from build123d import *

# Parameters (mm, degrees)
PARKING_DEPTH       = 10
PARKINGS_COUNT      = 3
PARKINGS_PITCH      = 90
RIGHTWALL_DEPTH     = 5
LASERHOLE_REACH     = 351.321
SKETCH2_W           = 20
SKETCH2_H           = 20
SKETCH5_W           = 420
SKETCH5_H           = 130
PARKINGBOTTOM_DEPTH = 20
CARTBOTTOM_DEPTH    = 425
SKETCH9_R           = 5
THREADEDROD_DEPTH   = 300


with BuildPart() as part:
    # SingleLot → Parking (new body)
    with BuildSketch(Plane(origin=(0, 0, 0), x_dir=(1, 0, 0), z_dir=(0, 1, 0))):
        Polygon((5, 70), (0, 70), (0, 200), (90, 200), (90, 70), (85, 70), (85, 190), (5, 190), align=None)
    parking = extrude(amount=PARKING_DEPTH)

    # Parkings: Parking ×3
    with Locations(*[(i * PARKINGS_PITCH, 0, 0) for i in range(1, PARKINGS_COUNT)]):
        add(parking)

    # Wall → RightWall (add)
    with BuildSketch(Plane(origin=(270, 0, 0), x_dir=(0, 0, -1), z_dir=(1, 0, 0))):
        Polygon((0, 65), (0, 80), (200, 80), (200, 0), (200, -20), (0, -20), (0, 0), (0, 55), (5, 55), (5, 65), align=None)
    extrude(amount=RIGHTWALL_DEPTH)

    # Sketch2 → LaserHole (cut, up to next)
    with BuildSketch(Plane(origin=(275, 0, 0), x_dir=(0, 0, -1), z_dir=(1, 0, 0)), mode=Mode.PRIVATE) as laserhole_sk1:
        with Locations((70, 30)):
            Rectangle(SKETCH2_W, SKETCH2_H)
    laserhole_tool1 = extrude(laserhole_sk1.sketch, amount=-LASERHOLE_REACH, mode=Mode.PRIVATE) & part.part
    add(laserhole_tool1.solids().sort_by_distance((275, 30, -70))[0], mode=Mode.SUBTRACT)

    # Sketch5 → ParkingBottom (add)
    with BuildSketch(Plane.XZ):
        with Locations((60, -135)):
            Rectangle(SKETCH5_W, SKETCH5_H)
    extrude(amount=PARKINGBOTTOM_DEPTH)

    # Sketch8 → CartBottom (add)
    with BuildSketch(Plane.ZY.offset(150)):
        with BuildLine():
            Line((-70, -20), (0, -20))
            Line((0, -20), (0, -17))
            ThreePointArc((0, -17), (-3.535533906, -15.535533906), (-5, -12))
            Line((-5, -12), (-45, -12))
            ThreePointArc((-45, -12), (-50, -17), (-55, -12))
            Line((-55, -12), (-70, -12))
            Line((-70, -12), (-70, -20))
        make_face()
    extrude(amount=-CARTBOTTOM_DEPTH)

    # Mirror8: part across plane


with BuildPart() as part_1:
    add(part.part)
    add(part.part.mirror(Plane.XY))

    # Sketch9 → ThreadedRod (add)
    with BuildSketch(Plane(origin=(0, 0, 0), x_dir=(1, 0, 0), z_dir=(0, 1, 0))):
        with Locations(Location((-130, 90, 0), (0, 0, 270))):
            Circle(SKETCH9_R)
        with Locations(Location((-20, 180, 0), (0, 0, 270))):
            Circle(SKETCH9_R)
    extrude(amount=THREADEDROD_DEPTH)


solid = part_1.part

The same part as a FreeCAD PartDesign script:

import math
import FreeCAD as App
import Part
import Sketcher
Q = App.Units.Quantity

doc = App.newDocument("Part")
body = doc.addObject("PartDesign::Body", "Body")

# Sketch on XZ plane
sketch1 = body.newObject("Sketcher::SketchObject", "Sketch")
sketch1.AttachmentSupport = (doc.getObject("XZ_Plane"), [""])
sketch1.MapMode = "FlatFace"
sketch1.addGeometry(Part.LineSegment(App.Vector(0, -70, 0), App.Vector(5, -70, 0)), False)
sketch1.addGeometry(Part.LineSegment(App.Vector(5, -70, 0), App.Vector(5, -190, 0)), False)
sketch1.addGeometry(Part.LineSegment(App.Vector(5, -190, 0), App.Vector(85, -190, 0)), False)
sketch1.addGeometry(Part.LineSegment(App.Vector(85, -190, 0), App.Vector(85, -70, 0)), False)
sketch1.addGeometry(Part.LineSegment(App.Vector(85, -70, 0), App.Vector(90, -70, 0)), False)
sketch1.addGeometry(Part.LineSegment(App.Vector(90, -70, 0), App.Vector(90, -200, 0)), False)
sketch1.addGeometry(Part.LineSegment(App.Vector(90, -200, 0), App.Vector(0, -200, 0)), False)
sketch1.addGeometry(Part.LineSegment(App.Vector(0, -200, 0), App.Vector(0, -70, 0)), False)
sketch1.addConstraint(Sketcher.Constraint("Coincident", 0, 2, 1, 1))
sketch1.addConstraint(Sketcher.Constraint("Coincident", 1, 2, 2, 1))
sketch1.addConstraint(Sketcher.Constraint("Coincident", 2, 2, 3, 1))
sketch1.addConstraint(Sketcher.Constraint("Coincident", 3, 2, 4, 1))
sketch1.addConstraint(Sketcher.Constraint("Coincident", 4, 2, 5, 1))
sketch1.addConstraint(Sketcher.Constraint("Coincident", 5, 2, 6, 1))
sketch1.addConstraint(Sketcher.Constraint("Coincident", 6, 2, 7, 1))
sketch1.addConstraint(Sketcher.Constraint("Coincident", 7, 2, 0, 1))
sketch1.addConstraint(Sketcher.Constraint("Horizontal", 0))
sketch1.addConstraint(Sketcher.Constraint("Vertical", 1))
sketch1.addConstraint(Sketcher.Constraint("Horizontal", 2))
sketch1.addConstraint(Sketcher.Constraint("Vertical", 3))
sketch1.addConstraint(Sketcher.Constraint("Horizontal", 4))
sketch1.addConstraint(Sketcher.Constraint("Vertical", 5))
sketch1.addConstraint(Sketcher.Constraint("Horizontal", 6))
sketch1.addConstraint(Sketcher.Constraint("Vertical", 7))
sketch1.addConstraint(Sketcher.Constraint("PointOnObject", 6, 2, -2))
sketch1.addConstraint(Sketcher.Constraint("Horizontal", 0, 2, 3, 2))
sketch1.addConstraint(Sketcher.Constraint("Equal", 0, 4))
sketch1.addConstraint(Sketcher.Constraint("DistanceX", 0, 1, 0, 2, Q("5 mm")))
sketch1.addConstraint(Sketcher.Constraint("DistanceX", 2, 1, 2, 2, Q("80 mm")))
sketch1.addConstraint(Sketcher.Constraint("DistanceY", 1, 2, 1, 1, Q("120 mm")))
sketch1.addConstraint(Sketcher.Constraint("DistanceY", 5, 2, 5, 1, Q("130 mm")))
sketch1.addConstraint(Sketcher.Constraint("DistanceY", 0, 2, -1, 1, Q("70 mm")))
pad1 = body.newObject("PartDesign::Pad", "Pad")
pad1.Profile = sketch1
pad1.Length = 10
pad1.Reversed = True
doc.recompute()

linearpattern = body.newObject("PartDesign::LinearPattern", "LinearPattern")
linearpattern.Originals = [pad1]
linearpattern.Direction = (doc.getObject("X_Axis"), [""])
linearpattern.Mode = "offset"
linearpattern.Offset = 90
linearpattern.Occurrences = 3
body.Tip = linearpattern

# Sketch on YZ plane
sketch2 = body.newObject("Sketcher::SketchObject", "Sketch001")
sketch2.AttachmentSupport = (doc.getObject("YZ_Plane"), [""])
sketch2.MapMode = "FlatFace"
sketch2.AttachmentOffset = App.Placement(App.Vector(0, 0, 270), App.Rotation())
sketch2.addGeometry(Part.LineSegment(App.Vector(80, 0, 0), App.Vector(65, 0, 0)), False)
sketch2.addGeometry(Part.LineSegment(App.Vector(65, 0, 0), App.Vector(65, -5, 0)), False)
sketch2.addGeometry(Part.LineSegment(App.Vector(65, -5, 0), App.Vector(55, -5, 0)), False)
sketch2.addGeometry(Part.LineSegment(App.Vector(55, -5, 0), App.Vector(55, 0, 0)), False)
sketch2.addGeometry(Part.LineSegment(App.Vector(55, 0, 0), App.Vector(-20, 0, 0)), False)
sketch2.addGeometry(Part.LineSegment(App.Vector(-20, 0, 0), App.Vector(-20, -200, 0)), False)
sketch2.addGeometry(Part.LineSegment(App.Vector(-20, -200, 0), App.Vector(80, -200, 0)), False)
sketch2.addGeometry(Part.LineSegment(App.Vector(80, -200, 0), App.Vector(80, 0, 0)), False)
sketch2.addConstraint(Sketcher.Constraint("Coincident", 0, 2, 1, 1))
sketch2.addConstraint(Sketcher.Constraint("Coincident", 1, 2, 2, 1))
sketch2.addConstraint(Sketcher.Constraint("Coincident", 2, 2, 3, 1))
sketch2.addConstraint(Sketcher.Constraint("Coincident", 3, 2, 4, 1))
sketch2.addConstraint(Sketcher.Constraint("Coincident", 4, 2, 5, 1))
sketch2.addConstraint(Sketcher.Constraint("Coincident", 5, 2, 6, 1))
sketch2.addConstraint(Sketcher.Constraint("Coincident", 6, 2, 7, 1))
sketch2.addConstraint(Sketcher.Constraint("Coincident", 7, 2, 0, 1))
sketch2.addConstraint(Sketcher.Constraint("Horizontal", 0))
sketch2.addConstraint(Sketcher.Constraint("Vertical", 1))
sketch2.addConstraint(Sketcher.Constraint("Horizontal", 2))
sketch2.addConstraint(Sketcher.Constraint("Vertical", 3))
sketch2.addConstraint(Sketcher.Constraint("Horizontal", 4))
sketch2.addConstraint(Sketcher.Constraint("Vertical", 5))
sketch2.addConstraint(Sketcher.Constraint("Horizontal", 6))
sketch2.addConstraint(Sketcher.Constraint("Vertical", 7))
sketch2.addConstraint(Sketcher.Constraint("PointOnObject", 0, 2, -1))
sketch2.addConstraint(Sketcher.Constraint("PointOnObject", 3, 2, -1))
sketch2.addConstraint(Sketcher.Constraint("DistanceX", 0, 2, 0, 1, Q("15 mm")))
sketch2.addConstraint(Sketcher.Constraint("DistanceX", 2, 2, 2, 1, Q("10 mm")))
sketch2.addConstraint(Sketcher.Constraint("DistanceX", 4, 2, 4, 1, Q("75 mm")))
sketch2.addConstraint(Sketcher.Constraint("DistanceY", 1, 2, 1, 1, Q("5 mm")))
sketch2.addConstraint(Sketcher.Constraint("DistanceY", 5, 2, 5, 1, Q("200 mm")))
sketch2.addConstraint(Sketcher.Constraint("DistanceX", -1, 1, 0, 2, Q("65 mm")))
pad2 = body.newObject("PartDesign::Pad", "Pad001")
pad2.Profile = sketch2
pad2.Length = 5

# Sketch on YZ plane
sketch3 = body.newObject("Sketcher::SketchObject", "Sketch002")
sketch3.AttachmentSupport = (doc.getObject("YZ_Plane"), [""])
sketch3.MapMode = "FlatFace"
sketch3.AttachmentOffset = App.Placement(App.Vector(0, 0, 275), App.Rotation())
sketch3.addGeometry(Part.LineSegment(App.Vector(40, -60, 0), App.Vector(20, -60, 0)), False)
sketch3.addGeometry(Part.LineSegment(App.Vector(20, -60, 0), App.Vector(20, -80, 0)), False)
sketch3.addGeometry(Part.LineSegment(App.Vector(20, -80, 0), App.Vector(40, -80, 0)), False)
sketch3.addGeometry(Part.LineSegment(App.Vector(40, -80, 0), App.Vector(40, -60, 0)), False)
sketch3.addConstraint(Sketcher.Constraint("Coincident", 0, 2, 1, 1))
sketch3.addConstraint(Sketcher.Constraint("Coincident", 1, 2, 2, 1))
sketch3.addConstraint(Sketcher.Constraint("Coincident", 2, 2, 3, 1))
sketch3.addConstraint(Sketcher.Constraint("Coincident", 3, 2, 0, 1))
sketch3.addConstraint(Sketcher.Constraint("Horizontal", 0))
sketch3.addConstraint(Sketcher.Constraint("Vertical", 1))
sketch3.addConstraint(Sketcher.Constraint("Horizontal", 2))
sketch3.addConstraint(Sketcher.Constraint("Vertical", 3))
sketch3.addConstraint(Sketcher.Constraint("Equal", 2, 1))
sketch3.addConstraint(Sketcher.Constraint("DistanceX", 0, 2, 0, 1, Q("20 mm")))
sketch3.addConstraint(Sketcher.Constraint("DistanceX", -1, 1, 0, 2, Q("20 mm")))
sketch3.addConstraint(Sketcher.Constraint("DistanceY", 0, 2, -1, 1, Q("60 mm")))
pocket1 = body.newObject("PartDesign::Pocket", "Pocket")
pocket1.Profile = sketch3
pocket1.Type = "UpToFirst"

# Sketch on XZ plane
sketch4 = body.newObject("Sketcher::SketchObject", "Sketch003")
sketch4.AttachmentSupport = (doc.getObject("XZ_Plane"), [""])
sketch4.MapMode = "FlatFace"
sketch4.addGeometry(Part.LineSegment(App.Vector(-150, -70, 0), App.Vector(-150, -200, 0)), False)
sketch4.addGeometry(Part.LineSegment(App.Vector(-150, -200, 0), App.Vector(270, -200, 0)), False)
sketch4.addGeometry(Part.LineSegment(App.Vector(270, -200, 0), App.Vector(270, -70, 0)), False)
sketch4.addGeometry(Part.LineSegment(App.Vector(270, -70, 0), App.Vector(-150, -70, 0)), False)
sketch4.addConstraint(Sketcher.Constraint("Coincident", 0, 2, 1, 1))
sketch4.addConstraint(Sketcher.Constraint("Coincident", 1, 2, 2, 1))
sketch4.addConstraint(Sketcher.Constraint("Coincident", 2, 2, 3, 1))
sketch4.addConstraint(Sketcher.Constraint("Coincident", 3, 2, 0, 1))
sketch4.addConstraint(Sketcher.Constraint("Vertical", 0))
sketch4.addConstraint(Sketcher.Constraint("Horizontal", 1))
sketch4.addConstraint(Sketcher.Constraint("Vertical", 2))
sketch4.addConstraint(Sketcher.Constraint("Horizontal", 3))
sketch4.addConstraint(Sketcher.Constraint("DistanceX", 1, 1, 1, 2, Q("420 mm")))
sketch4.addConstraint(Sketcher.Constraint("DistanceY", 0, 2, 0, 1, Q("130 mm")))
sketch4.addConstraint(Sketcher.Constraint("DistanceX", 0, 2, -1, 1, Q("150 mm")))
sketch4.addConstraint(Sketcher.Constraint("DistanceY", 0, 2, -1, 1, Q("200 mm")))
pad3 = body.newObject("PartDesign::Pad", "Pad002")
pad3.Profile = sketch4
pad3.Length = 20

# Sketch on YZ plane
sketch5 = body.newObject("Sketcher::SketchObject", "Sketch004")
sketch5.AttachmentSupport = (doc.getObject("YZ_Plane"), [""])
sketch5.MapMode = "FlatFace"
sketch5.AttachmentOffset = App.Placement(App.Vector(0, 0, -150), App.Rotation())
sketch5.addGeometry(Part.LineSegment(App.Vector(-20, -70, 0), App.Vector(-20, 0, 0)), False)
sketch5.addGeometry(Part.LineSegment(App.Vector(-20, 0, 0), App.Vector(-17, 0, 0)), False)
sketch5.addGeometry(Part.ArcOfCircle(Part.Circle(App.Vector(-12, 0, 0), App.Vector(0, 0, 1), 5), math.radians(180), math.radians(270)), False)
sketch5.addGeometry(Part.LineSegment(App.Vector(-12, -5, 0), App.Vector(-12, -45, 0)), False)
sketch5.addGeometry(Part.ArcOfCircle(Part.Circle(App.Vector(-12, -50, 0), App.Vector(0, 0, 1), 5), math.radians(90), math.radians(270)), False)
sketch5.addGeometry(Part.LineSegment(App.Vector(-12, -55, 0), App.Vector(-12, -70, 0)), False)
sketch5.addGeometry(Part.LineSegment(App.Vector(-12, -70, 0), App.Vector(-20, -70, 0)), False)
sketch5.addConstraint(Sketcher.Constraint("Coincident", 0, 2, 1, 1))
sketch5.addConstraint(Sketcher.Constraint("Coincident", 1, 2, 2, 1))
sketch5.addConstraint(Sketcher.Constraint("Coincident", 2, 2, 3, 1))
sketch5.addConstraint(Sketcher.Constraint("Coincident", 3, 2, 4, 1))
sketch5.addConstraint(Sketcher.Constraint("Coincident", 4, 2, 5, 1))
sketch5.addConstraint(Sketcher.Constraint("Coincident", 5, 2, 6, 1))
sketch5.addConstraint(Sketcher.Constraint("Coincident", 6, 2, 0, 1))
sketch5.addConstraint(Sketcher.Constraint("Vertical", 0))
sketch5.addConstraint(Sketcher.Constraint("Horizontal", 1))
sketch5.addConstraint(Sketcher.Constraint("Vertical", 3))
sketch5.addConstraint(Sketcher.Constraint("Vertical", 5))
sketch5.addConstraint(Sketcher.Constraint("Horizontal", 6))
sketch5.addConstraint(Sketcher.Constraint("Equal", 2, 4))
sketch5.addConstraint(Sketcher.Constraint("PointOnObject", 2, 3, -1))
sketch5.addConstraint(Sketcher.Constraint("PointOnObject", 0, 2, -1))
sketch5.addConstraint(Sketcher.Constraint("Vertical", 2, 3, 4, 3))
sketch5.addConstraint(Sketcher.Constraint("Vertical", 4, 3, 2, 2))
sketch5.addConstraint(Sketcher.Constraint("Vertical", 3, 2, 4, 2))
sketch5.addConstraint(Sketcher.Constraint("Radius", 2, Q("5 mm")))
sketch5.addConstraint(Sketcher.Constraint("DistanceX", 1, 1, 1, 2, Q("3 mm")))
sketch5.addConstraint(Sketcher.Constraint("DistanceY", 0, 1, 0, 2, Q("70 mm")))
sketch5.addConstraint(Sketcher.Constraint("DistanceY", 3, 2, 3, 1, Q("40 mm")))
sketch5.addConstraint(Sketcher.Constraint("DistanceX", 2, 3, -1, 1, Q("12 mm")))
pad4 = body.newObject("PartDesign::Pad", "Pad003")
pad4.Profile = sketch5
pad4.Length = 425
body2 = doc.addObject("PartDesign::Body", "Body001")
doc.recompute()

body2.BaseFeature = body
doc.recompute()

mirroring = doc.addObject("Part::Mirroring", "Mirroring")
mirroring.Source = body
mirroring.Base = App.Vector(0, 0, 0)
mirroring.Normal = App.Vector(0, 0, 1)
body3 = doc.addObject("PartDesign::Body", "Body002")
body3.BaseFeature = mirroring
boolean = body2.newObject("PartDesign::Boolean", "Boolean")
boolean.Type = "Fuse"
boolean.addObjects([body3])
doc.recompute()

# Sketch on XZ plane
sketch6 = body2.newObject("Sketcher::SketchObject", "Sketch005")
sketch6.AttachmentSupport = (doc.getObject("XZ_Plane001"), [""])
sketch6.MapMode = "FlatFace"
sketch6.addGeometry(Part.Circle(App.Vector(-130, -90, 0), App.Vector(0, 0, 1), 5), False)
sketch6.addGeometry(Part.Circle(App.Vector(-20, -180, 0), App.Vector(0, 0, 1), 5), False)
sketch6.addConstraint(Sketcher.Constraint("Equal", 0, 1))
sketch6.addConstraint(Sketcher.Constraint("Diameter", 0, Q("10 mm")))
sketch6.addConstraint(Sketcher.Constraint("DistanceX", 0, 3, -1, 1, Q("130 mm")))
sketch6.addConstraint(Sketcher.Constraint("DistanceY", 0, 3, -1, 1, Q("90 mm")))
sketch6.addConstraint(Sketcher.Constraint("DistanceX", 1, 3, -1, 1, Q("20 mm")))
sketch6.addConstraint(Sketcher.Constraint("DistanceY", 1, 3, -1, 1, Q("180 mm")))
pad5 = body2.newObject("PartDesign::Pad", "Pad004")
pad5.Profile = sketch6
pad5.Length = 300
pad5.Reversed = True
mirroring.Visibility = False

doc.recompute()
